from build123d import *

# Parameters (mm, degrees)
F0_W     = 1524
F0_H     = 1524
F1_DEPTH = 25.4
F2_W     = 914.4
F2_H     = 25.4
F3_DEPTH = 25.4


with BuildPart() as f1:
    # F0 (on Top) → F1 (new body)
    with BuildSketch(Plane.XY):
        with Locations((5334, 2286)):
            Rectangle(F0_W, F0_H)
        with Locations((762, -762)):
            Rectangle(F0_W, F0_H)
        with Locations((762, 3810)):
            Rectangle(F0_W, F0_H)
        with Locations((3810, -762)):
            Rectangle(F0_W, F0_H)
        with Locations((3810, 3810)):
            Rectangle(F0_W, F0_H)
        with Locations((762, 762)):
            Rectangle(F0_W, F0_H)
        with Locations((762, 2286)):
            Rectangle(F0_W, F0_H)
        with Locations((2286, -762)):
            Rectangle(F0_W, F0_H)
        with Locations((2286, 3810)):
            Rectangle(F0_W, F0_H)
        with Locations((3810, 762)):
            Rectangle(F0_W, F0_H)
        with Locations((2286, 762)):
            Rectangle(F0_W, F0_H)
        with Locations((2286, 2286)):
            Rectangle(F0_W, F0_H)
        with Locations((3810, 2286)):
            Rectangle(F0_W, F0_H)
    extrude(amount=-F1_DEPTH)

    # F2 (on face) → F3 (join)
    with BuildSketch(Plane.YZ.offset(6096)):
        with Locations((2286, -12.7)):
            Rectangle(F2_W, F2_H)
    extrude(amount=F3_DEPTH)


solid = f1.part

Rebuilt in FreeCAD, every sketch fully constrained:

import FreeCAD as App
import Part
import Sketcher
from FreeCAD import Vector
Q = App.Units.Quantity


def add_polygon(sketch, points):
    """Adds a closed chain of lines whose ends are joined by coincident constraints."""
    first, n = sketch.GeometryCount, len(points)
    for a, b in zip(points, points[1:] + points[:1]):
        sketch.addGeometry(Part.LineSegment(App.Vector(*a, 0), App.Vector(*b, 0)), False)
    for i in range(n):
        sketch.addConstraint(Sketcher.Constraint("Coincident", first + i, 2, first + (i + 1) % n, 1))

doc = App.newDocument("Part")
body = doc.addObject("PartDesign::Body", "Body")

# Sketch on XY plane
sketch1 = doc.addObject("Sketcher::SketchObject", "Sketch")
body.addObject(sketch1)
sketch1.AttachmentSupport = (doc.XY_Plane, [""])
sketch1.MapMode = "FlatFace"
add_polygon(sketch1, [(4572, 1524), (6096, 1524), (6096, 3048), (4572, 3048), (4572, 4572), (0, 4572), (0, -1524), (4572, -1524)])  # lines 0-7
sketch1.addConstraint(Sketcher.Constraint("Horizontal", 0))
sketch1.addConstraint(Sketcher.Constraint("Vertical", 1))
sketch1.addConstraint(Sketcher.Constraint("Horizontal", 2))
sketch1.addConstraint(Sketcher.Constraint("Vertical", 3))
sketch1.addConstraint(Sketcher.Constraint("Horizontal", 4))
sketch1.addConstraint(Sketcher.Constraint("Vertical", 5))
sketch1.addConstraint(Sketcher.Constraint("Horizontal", 6))
sketch1.addConstraint(Sketcher.Constraint("Vertical", 7))
sketch1.addConstraint(Sketcher.Constraint("PointOnObject", 4, 2, -2))
sketch1.addConstraint(Sketcher.Constraint("Vertical", 3, 2, 6, 2))
sketch1.addConstraint(Sketcher.Constraint("Equal", 2, 1))
sketch1.addConstraint(Sketcher.Constraint("Equal", 1, 3))
sketch1.addConstraint(Sketcher.Constraint("DistanceX", 0, 1, 0, 2, Q("60 in")))
sketch1.addConstraint(Sketcher.Constraint("DistanceX", 4, 2, 4, 1, Q("180 in")))
sketch1.addConstraint(Sketcher.Constraint("DistanceY", 5, 2, 5, 1, Q("240 in")))
sketch1.addConstraint(Sketcher.Constraint("DistanceY", -1, 1, 0, 2, Q("60 in")))
pad1 = doc.addObject("PartDesign::Pad", "Pad")
body.addObject(pad1)
pad1.Profile = sketch1
pad1.Length = Q("1 in")
pad1.Reversed = True

# Sketch on YZ plane
sketch2 = doc.addObject("Sketcher::SketchObject", "Sketch001")
body.addObject(sketch2)
sketch2.AttachmentSupport = (doc.YZ_Plane, [""])
sketch2.MapMode = "FlatFace"
sketch2.AttachmentOffset = App.Placement(Vector(0, 0, 240 * 25.4), App.Rotation())
add_polygon(sketch2, [(1828.8, 0), (1828.8, -25.4), (2743.2, -25.4), (2743.2, 0)])  # lines 0-3
sketch2.addConstraint(Sketcher.Constraint("Vertical", 0))
sketch2.addConstraint(Sketcher.Constraint("Horizontal", 1))
sketch2.addConstraint(Sketcher.Constraint("Vertical", 2))
sketch2.addConstraint(Sketcher.Constraint("Horizontal", 3))
sketch2.addConstraint(Sketcher.Constraint("PointOnObject", 2, 2, -1))
sketch2.addConstraint(Sketcher.Constraint("DistanceX", 1, 1, 1, 2, Q("36 in")))
sketch2.addConstraint(Sketcher.Constraint("DistanceY", 0, 2, 0, 1, Q("1 in")))
sketch2.addConstraint(Sketcher.Constraint("DistanceX", -1, 1, 0, 2, Q("72 in")))
pad2 = doc.addObject("PartDesign::Pad", "Pad001")
body.addObject(pad2)
pad2.Profile = sketch2
pad2.Length = Q("1 in")

doc.recompute()
